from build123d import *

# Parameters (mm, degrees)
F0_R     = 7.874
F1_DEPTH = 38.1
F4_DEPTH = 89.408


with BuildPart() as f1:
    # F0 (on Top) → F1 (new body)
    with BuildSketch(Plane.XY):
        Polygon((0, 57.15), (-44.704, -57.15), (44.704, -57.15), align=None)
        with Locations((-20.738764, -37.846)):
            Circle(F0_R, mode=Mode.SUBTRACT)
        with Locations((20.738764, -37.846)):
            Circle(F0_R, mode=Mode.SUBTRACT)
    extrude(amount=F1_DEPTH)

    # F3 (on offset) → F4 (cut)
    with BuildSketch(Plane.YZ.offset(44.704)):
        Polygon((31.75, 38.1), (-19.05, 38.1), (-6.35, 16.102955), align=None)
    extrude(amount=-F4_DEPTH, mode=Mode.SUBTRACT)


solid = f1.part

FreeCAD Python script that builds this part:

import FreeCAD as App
import Part
import Sketcher
Q = App.Units.Quantity

doc = App.newDocument("Part")
body = doc.addObject("PartDesign::Body", "Body")

sketch1 = body.newObject("Sketcher::SketchObject", "Sketch")
sketch1.AttachmentSupport = (doc.getObject("XY_Plane"), [""])
sketch1.MapMode = "FlatFace"
sketch1.addGeometry(Part.LineSegment(App.Vector(0, 57, 0), App.Vector(-45, -57, 0)), False)
sketch1.addGeometry(Part.LineSegment(App.Vector(-45, -57, 0), App.Vector(45, -57, 0)), False)
sketch1.addGeometry(Part.LineSegment(App.Vector(45, -57, 0), App.Vector(0, 57, 0)), False)
sketch1.addGeometry(Part.Circle(App.Vector(-21, -38, 0), App.Vector(0, 0, 1), 8), False)
sketch1.addGeometry(Part.Circle(App.Vector(21, -38, 0), App.Vector(0, 0, 1), 8), False)
sketch1.addConstraint(Sketcher.Constraint("Coincident", 0, 2, 1, 1))
sketch1.addConstraint(Sketcher.Constraint("Coincident", 1, 2, 2, 1))
sketch1.addConstraint(Sketcher.Constraint("Coincident", 2, 2, 0, 1))
sketch1.addConstraint(Sketcher.Constraint("Horizontal", 1))
sketch1.addConstraint(Sketcher.Constraint("Equal", 3, 4))
sketch1.addConstraint(Sketcher.Constraint("Symmetric", 3, 3, 4, 3, -2))
sketch1.addConstraint(Sketcher.Constraint("PointOnObject", 2, 2, -2))
sketch1.addConstraint(Sketcher.Constraint("Equal", 0, 2))
sketch1.addConstraint(Sketcher.Constraint("Diameter", 3, Q("0.62 in")))
sketch1.addConstraint(Sketcher.Constraint("DistanceX", 1, 1, 1, 2, Q("3.52 in")))
sketch1.addConstraint(Sketcher.Constraint("DistanceY", 0, 2, 2, 2, Q("4.5 in")))
sketch1.addConstraint(Sketcher.Constraint("DistanceY", 3, 3, -1, 1, Q("1.49 in")))
sketch1.addConstraint(Sketcher.Constraint("DistanceY", 0, 2, -1, 1, Q("2.25 in")))
sketch1.addConstraint(Sketcher.Constraint("DistanceX", 3, 3, -1, 1, 20.738764))
pad1 = body.newObject("PartDesign::Pad", "Pad")
pad1.Profile = sketch1
pad1.Length = Q("1.5 in")

sketch2 = body.newObject("Sketcher::SketchObject", "Sketch001")
sketch2.AttachmentSupport = (doc.getObject("YZ_Plane"), [""])
sketch2.MapMode = "FlatFace"
sketch2.AttachmentOffset = App.Placement(App.Vector(0, 0, 1.76 * 25.4), App.Rotation())
sketch2.addGeometry(Part.LineSegment(App.Vector(32, 38, 0), App.Vector(-19, 38, 0)), False)
sketch2.addGeometry(Part.LineSegment(App.Vector(-19, 38, 0), App.Vector(-6, 16, 0)), False)
sketch2.addGeometry(Part.LineSegment(App.Vector(-6, 16, 0), App.Vector(32, 38, 0)), False)
sketch2.addConstraint(Sketcher.Constraint("Coincident", 0, 2, 1, 1))
sketch2.addConstraint(Sketcher.Constraint("Coincident", 1, 2, 2, 1))
sketch2.addConstraint(Sketcher.Constraint("Coincident", 2, 2, 0, 1))
sketch2.addConstraint(Sketcher.Constraint("Horizontal", 0))
sketch2.addConstraint(Sketcher.Constraint("Perpendicular", 1, 2))
sketch2.addConstraint(Sketcher.Constraint("DistanceX", 0, 2, 0, 1, Q("2 in")))
sketch2.addConstraint(Sketcher.Constraint("Distance", 1, Q("1 in")))
sketch2.addConstraint(Sketcher.Constraint("DistanceY", -1, 1, 0, 2, Q("1.5 in")))
sketch2.addConstraint(Sketcher.Constraint("DistanceX", 0, 2, -1, 1, Q("0.75 in")))
pocket1 = body.newObject("PartDesign::Pocket", "Pocket")
pocket1.Profile = sketch2
pocket1.Length = Q("3.52 in")

doc.recompute()
